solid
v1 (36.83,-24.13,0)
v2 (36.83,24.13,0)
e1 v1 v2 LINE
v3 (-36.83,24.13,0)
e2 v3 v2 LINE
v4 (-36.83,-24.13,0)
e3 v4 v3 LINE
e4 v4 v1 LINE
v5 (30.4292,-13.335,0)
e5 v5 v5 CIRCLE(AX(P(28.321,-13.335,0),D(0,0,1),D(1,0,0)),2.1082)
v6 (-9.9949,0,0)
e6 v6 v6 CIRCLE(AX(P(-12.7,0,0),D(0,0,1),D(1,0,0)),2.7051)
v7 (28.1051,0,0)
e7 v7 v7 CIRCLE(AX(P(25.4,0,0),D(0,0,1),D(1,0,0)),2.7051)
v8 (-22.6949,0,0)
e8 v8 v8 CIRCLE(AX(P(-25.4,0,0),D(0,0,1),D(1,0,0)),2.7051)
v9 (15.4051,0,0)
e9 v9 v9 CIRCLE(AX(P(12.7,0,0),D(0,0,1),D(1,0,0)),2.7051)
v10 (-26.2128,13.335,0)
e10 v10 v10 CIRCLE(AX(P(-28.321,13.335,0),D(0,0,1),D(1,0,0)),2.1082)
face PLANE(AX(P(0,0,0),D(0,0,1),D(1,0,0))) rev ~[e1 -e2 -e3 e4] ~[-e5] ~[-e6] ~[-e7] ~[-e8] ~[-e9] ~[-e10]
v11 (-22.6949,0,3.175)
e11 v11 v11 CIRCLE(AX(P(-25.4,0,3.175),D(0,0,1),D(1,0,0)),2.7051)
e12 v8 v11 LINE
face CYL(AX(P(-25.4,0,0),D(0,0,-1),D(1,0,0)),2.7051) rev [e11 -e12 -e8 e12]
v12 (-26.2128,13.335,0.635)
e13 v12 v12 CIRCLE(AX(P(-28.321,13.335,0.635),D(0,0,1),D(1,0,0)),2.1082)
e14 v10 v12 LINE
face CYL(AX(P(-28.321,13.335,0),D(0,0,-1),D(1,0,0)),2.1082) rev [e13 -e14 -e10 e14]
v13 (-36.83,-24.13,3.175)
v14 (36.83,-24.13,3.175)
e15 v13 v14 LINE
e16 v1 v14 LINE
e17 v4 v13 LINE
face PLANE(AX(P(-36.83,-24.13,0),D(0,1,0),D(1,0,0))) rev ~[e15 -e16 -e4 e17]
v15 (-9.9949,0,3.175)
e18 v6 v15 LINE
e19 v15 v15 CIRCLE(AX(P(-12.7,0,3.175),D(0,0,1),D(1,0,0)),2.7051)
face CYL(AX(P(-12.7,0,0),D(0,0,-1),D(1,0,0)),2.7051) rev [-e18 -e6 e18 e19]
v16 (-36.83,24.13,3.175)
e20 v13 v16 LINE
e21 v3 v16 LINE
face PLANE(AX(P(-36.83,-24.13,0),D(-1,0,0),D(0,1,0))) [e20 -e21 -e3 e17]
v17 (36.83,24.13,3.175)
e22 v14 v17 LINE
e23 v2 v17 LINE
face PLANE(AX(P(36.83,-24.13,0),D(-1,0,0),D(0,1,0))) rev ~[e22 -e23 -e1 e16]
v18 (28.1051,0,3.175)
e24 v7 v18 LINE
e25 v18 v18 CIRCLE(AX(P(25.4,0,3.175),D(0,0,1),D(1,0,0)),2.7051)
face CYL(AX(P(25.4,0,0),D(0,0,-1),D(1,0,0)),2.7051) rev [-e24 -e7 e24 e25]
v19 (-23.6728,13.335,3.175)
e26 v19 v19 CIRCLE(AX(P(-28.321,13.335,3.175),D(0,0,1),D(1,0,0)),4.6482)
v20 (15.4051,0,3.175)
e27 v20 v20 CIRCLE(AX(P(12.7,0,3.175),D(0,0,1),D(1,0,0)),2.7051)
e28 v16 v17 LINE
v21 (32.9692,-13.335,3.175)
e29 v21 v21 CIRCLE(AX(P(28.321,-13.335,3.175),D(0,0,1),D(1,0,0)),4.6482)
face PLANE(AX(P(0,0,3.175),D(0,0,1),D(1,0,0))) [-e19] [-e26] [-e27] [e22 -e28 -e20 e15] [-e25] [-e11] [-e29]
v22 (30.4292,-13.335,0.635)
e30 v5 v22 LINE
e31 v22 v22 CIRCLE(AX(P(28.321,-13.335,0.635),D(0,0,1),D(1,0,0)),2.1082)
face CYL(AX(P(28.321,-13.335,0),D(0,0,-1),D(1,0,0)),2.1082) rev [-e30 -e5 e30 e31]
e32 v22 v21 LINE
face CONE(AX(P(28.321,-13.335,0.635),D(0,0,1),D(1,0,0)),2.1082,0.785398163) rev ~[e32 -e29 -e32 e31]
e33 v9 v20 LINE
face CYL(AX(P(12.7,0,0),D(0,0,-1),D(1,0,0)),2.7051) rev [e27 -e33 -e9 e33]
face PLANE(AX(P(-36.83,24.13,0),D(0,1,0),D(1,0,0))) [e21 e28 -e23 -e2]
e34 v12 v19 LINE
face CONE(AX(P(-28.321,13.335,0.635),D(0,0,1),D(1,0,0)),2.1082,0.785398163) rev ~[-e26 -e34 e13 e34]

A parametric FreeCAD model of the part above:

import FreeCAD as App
import Part
import Sketcher

V = App.Vector
Q = App.Units.Quantity


def edges_at(feature, points):
    """Names of the edges that pass closest to the given points."""
    edges = feature.Shape.Edges
    near = lambda p: min(range(len(edges)), key=lambda i: edges[i].distToShape(Part.Vertex(*p))[0])
    return sorted({f"Edge{near(p) + 1}" for p in points})


def add_polygon(sketch, points):
    """Adds a closed chain of lines whose ends are joined by coincident constraints."""
    first, n = sketch.GeometryCount, len(points)
    for a, b in zip(points, points[1:] + points[:1]):
        sketch.addGeometry(Part.LineSegment(App.Vector(*a, 0), App.Vector(*b, 0)), False)
    for i in range(n):
        sketch.addConstraint(Sketcher.Constraint("Coincident", first + i, 2, first + (i + 1) % n, 1))

doc = App.newDocument("Part")
body = doc.addObject("PartDesign::Body", "Body")

# Sketch on XY plane
sketch1 = body.newObject("Sketcher::SketchObject", "Sketch")
sketch1.AttachmentSupport = (doc.getObject("XY_Plane"), [""])
sketch1.MapMode = "FlatFace"
add_polygon(sketch1, [(-36.83, 24.13), (-36.83, -24.13), (36.83, -24.13), (36.83, 24.13)])  # lines 0-3
sketch1.addGeometry(Part.Circle(V(28.321, -13.335, 0), V(0, 0, 1), 2.1082), False)  # 4
sketch1.addGeometry(Part.Circle(V(-25.4, 0, 0), V(0, 0, 1), 2.7051), False)  # 5
sketch1.addGeometry(Part.Circle(V(-12.7, 0, 0), V(0, 0, 1), 2.7051), False)  # 6
sketch1.addGeometry(Part.Circle(V(-28.321, 13.335, 0), V(0, 0, 1), 2.1082), False)  # 7
sketch1.addGeometry(Part.Circle(V(12.7, 0, 0), V(0, 0, 1), 2.7051), False)  # 8
sketch1.addGeometry(Part.Circle(V(25.4, 0, 0), V(0, 0, 1), 2.7051), False)  # 9
sketch1.addConstraint([
    Sketcher.Constraint("Vertical", 0),
    Sketcher.Constraint("Horizontal", 1),
    Sketcher.Constraint("Vertical", 2),
    Sketcher.Constraint("Horizontal", 3),
    Sketcher.Constraint("Equal", 5, 6),
    Sketcher.Constraint("Equal", 4, 7),
    Sketcher.Constraint("Equal", 6, 8),
    Sketcher.Constraint("Equal", 8, 9),
    Sketcher.Constraint("Symmetric", 4, 3, 7, 3, -1, 1),
    Sketcher.Constraint("Symmetric", 6, 3, 8, 3, -1, 1),
    Sketcher.Constraint("Symmetric", 5, 3, 9, 3, -1, 1),
    Sketcher.Constraint("Symmetric", 0, 2, 2, 2, -1, 1),
    Sketcher.Constraint("PointOnObject", 5, 3, -1),
    Sketcher.Constraint("PointOnObject", 6, 3, -1),
    Sketcher.Constraint("Diameter", 4, Q("0.166 in")),
    Sketcher.Constraint("Diameter", 5, Q("0.213 in")),
    Sketcher.Constraint("DistanceX", 1, 1, 1, 2, Q("2.9 in")),
    Sketcher.Constraint("DistanceY", 0, 2, 0, 1, Q("1.9 in")),
    Sketcher.Constraint("DistanceX", 5, 3, -1, 1, Q("1 in")),
    Sketcher.Constraint("DistanceX", 6, 3, 8, 3, Q("1 in")),
    Sketcher.Constraint("DistanceX", 7, 3, 4, 3, Q("2.23 in")),
    Sketcher.Constraint("DistanceY", 4, 3, 7, 3, Q("1.05 in")),
])
pad1 = body.newObject("PartDesign::Pad", "Pad")
pad1.Profile = sketch1
pad1.Length = Q("0.125 in")
doc.recompute()

chamfer = body.newObject("PartDesign::Chamfer", "Chamfer")
chamfer.Base = (pad1, edges_at(pad1, [(-30.429, 13.335, 3.175), (26.213, -13.335, 3.175)]))
chamfer.Size = Q("0.1 in")

doc.recompute()
